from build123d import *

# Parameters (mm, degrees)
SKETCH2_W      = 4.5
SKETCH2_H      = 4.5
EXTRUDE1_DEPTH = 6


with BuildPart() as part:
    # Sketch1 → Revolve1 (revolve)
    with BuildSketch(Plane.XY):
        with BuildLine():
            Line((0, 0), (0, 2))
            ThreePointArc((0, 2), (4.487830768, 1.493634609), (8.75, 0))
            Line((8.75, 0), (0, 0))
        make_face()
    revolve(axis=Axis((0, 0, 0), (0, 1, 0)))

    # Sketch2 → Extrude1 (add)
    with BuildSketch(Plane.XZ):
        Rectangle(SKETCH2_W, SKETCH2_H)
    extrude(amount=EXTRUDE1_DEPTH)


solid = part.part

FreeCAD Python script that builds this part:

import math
import FreeCAD as App
import Part
import Sketcher
from FreeCAD import Vector
Q = App.Units.Quantity


def add_polygon(sketch, points):
    """Adds a closed chain of lines whose ends are joined by coincident constraints."""
    first, n = sketch.GeometryCount, len(points)
    for a, b in zip(points, points[1:] + points[:1]):
        sketch.addGeometry(Part.LineSegment(App.Vector(*a, 0), App.Vector(*b, 0)), False)
    for i in range(n):
        sketch.addConstraint(Sketcher.Constraint("Coincident", first + i, 2, first + (i + 1) % n, 1))

doc = App.newDocument("Part")
body = doc.addObject("PartDesign::Body", "Body")

sketch1 = doc.addObject("Sketcher::SketchObject", "Sketch")
body.addObject(sketch1)
sketch1.AttachmentSupport = (doc.XY_Plane, [""])
sketch1.MapMode = "FlatFace"
sketch1.addGeometry([
    Part.LineSegment(Vector(0, 2, 0), Vector(0, 0, 0)),
    Part.LineSegment(Vector(0, 0, 0), Vector(8.8, 0, 0)),
    Part.ArcOfCircle(Part.Circle(Vector(0, -18.1, 0), Vector(0, 0, 1), 20.1), math.radians(64), math.radians(90)),
], False)
sketch1.addConstraint([
    Sketcher.Constraint("Coincident", 0, 2, 1, 1),
    Sketcher.Constraint("Coincident", 1, 2, 2, 1),
    Sketcher.Constraint("Coincident", 2, 2, 0, 1),
    Sketcher.Constraint("Vertical", 0),
    Sketcher.Constraint("Horizontal", 1),
    Sketcher.Constraint("Coincident", 0, 2, -1, 1),
    Sketcher.Constraint("PointOnObject", 2, 3, -2),
    Sketcher.Constraint("DistanceY", 0, 2, 0, 1, Q("2 mm")),
    Sketcher.Constraint("DistanceX", 1, 1, 1, 2, Q("8.75 mm")),
])
revolution = doc.addObject("PartDesign::Revolution", "Revolution")
body.addObject(revolution)
revolution.Profile = sketch1
revolution.ReferenceAxis = (sketch1, ["V_Axis"])
revolution.Angle = 360

sketch2 = doc.addObject("Sketcher::SketchObject", "Sketch001")
body.addObject(sketch2)
sketch2.AttachmentSupport = (doc.XZ_Plane, [""])
sketch2.MapMode = "FlatFace"
add_polygon(sketch2, [(-2.2, 2.2), (-2.2, -2.2), (2.2, -2.2), (2.2, 2.2)])
sketch2.addConstraint([
    Sketcher.Constraint("Vertical", 0),
    Sketcher.Constraint("Horizontal", 1),
    Sketcher.Constraint("Vertical", 2),
    Sketcher.Constraint("Horizontal", 3),
    Sketcher.Constraint("Symmetric", 0, 2, 2, 2, -1, 1),
    Sketcher.Constraint("Equal", 3, 0),
    Sketcher.Constraint("DistanceX", 1, 1, 1, 2, Q("4.5 mm")),
])
pad1 = doc.addObject("PartDesign::Pad", "Pad")
body.addObject(pad1)
pad1.Profile = sketch2
pad1.Length = 6

doc.recompute()
